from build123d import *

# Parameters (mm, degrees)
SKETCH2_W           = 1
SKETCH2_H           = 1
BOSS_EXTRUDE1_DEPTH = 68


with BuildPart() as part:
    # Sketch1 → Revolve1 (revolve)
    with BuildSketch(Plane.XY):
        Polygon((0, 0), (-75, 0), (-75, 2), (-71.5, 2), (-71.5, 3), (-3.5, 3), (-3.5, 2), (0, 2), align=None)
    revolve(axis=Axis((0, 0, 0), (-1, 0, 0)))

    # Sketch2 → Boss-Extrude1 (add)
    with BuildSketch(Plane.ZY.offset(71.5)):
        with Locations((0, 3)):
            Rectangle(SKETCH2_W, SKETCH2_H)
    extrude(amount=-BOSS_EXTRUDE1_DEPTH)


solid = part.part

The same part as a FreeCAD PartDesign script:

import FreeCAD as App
import Part
import Sketcher
Q = App.Units.Quantity


def add_polygon(sketch, points):
    """Adds a closed chain of lines whose ends are joined by coincident constraints."""
    first, n = sketch.GeometryCount, len(points)
    for a, b in zip(points, points[1:] + points[:1]):
        sketch.addGeometry(Part.LineSegment(App.Vector(*a, 0), App.Vector(*b, 0)), False)
    for i in range(n):
        sketch.addConstraint(Sketcher.Constraint("Coincident", first + i, 2, first + (i + 1) % n, 1))

doc = App.newDocument("Part")
body = doc.addObject("PartDesign::Body", "Body")

sketch1 = body.newObject("Sketcher::SketchObject", "Sketch")
sketch1.AttachmentSupport = (doc.getObject("XY_Plane"), [""])
sketch1.MapMode = "FlatFace"
add_polygon(sketch1, [(-75, 0), (0, 0), (0, 2), (-3.5, 2), (-3.5, 3), (-71.5, 3), (-71.5, 2), (-75, 2)])
sketch1.addConstraint(Sketcher.Constraint("Horizontal", 0))
sketch1.addConstraint(Sketcher.Constraint("Vertical", 1))
sketch1.addConstraint(Sketcher.Constraint("Horizontal", 2))
sketch1.addConstraint(Sketcher.Constraint("Vertical", 3))
sketch1.addConstraint(Sketcher.Constraint("Horizontal", 4))
sketch1.addConstraint(Sketcher.Constraint("Vertical", 5))
sketch1.addConstraint(Sketcher.Constraint("Horizontal", 6))
sketch1.addConstraint(Sketcher.Constraint("Vertical", 7))
sketch1.addConstraint(Sketcher.Constraint("Coincident", 0, 2, -1, 1))
sketch1.addConstraint(Sketcher.Constraint("Horizontal", 2, 2, 5, 2))
sketch1.addConstraint(Sketcher.Constraint("Equal", 2, 6))
sketch1.addConstraint(Sketcher.Constraint("DistanceX", 0, 1, 0, 2, Q("75 mm")))
sketch1.addConstraint(Sketcher.Constraint("DistanceX", 4, 2, 4, 1, Q("68 mm")))
sketch1.addConstraint(Sketcher.Constraint("DistanceY", 1, 1, 1, 2, Q("2 mm")))
sketch1.addConstraint(Sketcher.Constraint("DistanceY", 3, 1, 3, 2, Q("1 mm")))
revolution = body.newObject("PartDesign::Revolution", "Revolution")
revolution.Profile = sketch1
revolution.ReferenceAxis = (sketch1, ["H_Axis"])
revolution.Angle = 360

sketch2 = body.newObject("Sketcher::SketchObject", "Sketch001")
sketch2.AttachmentSupport = (doc.getObject("YZ_Plane"), [""])
sketch2.MapMode = "FlatFace"
sketch2.AttachmentOffset = App.Placement(App.Vector(0, 0, -71.5), App.Rotation())
add_polygon(sketch2, [(3.5, -0.5), (2.5, -0.5), (2.5, 0.5), (3.5, 0.5)])
sketch2.addConstraint(Sketcher.Constraint("Horizontal", 0))
sketch2.addConstraint(Sketcher.Constraint("Vertical", 1))
sketch2.addConstraint(Sketcher.Constraint("Horizontal", 2))
sketch2.addConstraint(Sketcher.Constraint("Vertical", 3))
sketch2.addConstraint(Sketcher.Constraint("Equal", 2, 1))
sketch2.addConstraint(Sketcher.Constraint("DistanceX", 0, 2, 0, 1, Q("1 mm")))
sketch2.addConstraint(Sketcher.Constraint("DistanceX", -1, 1, 0, 2, Q("2.5 mm")))
sketch2.addConstraint(Sketcher.Constraint("DistanceY", 0, 2, -1, 1, Q("0.5 mm")))
pad1 = body.newObject("PartDesign::Pad", "Pad")
pad1.Profile = sketch2
pad1.Length = 68

doc.recompute()
